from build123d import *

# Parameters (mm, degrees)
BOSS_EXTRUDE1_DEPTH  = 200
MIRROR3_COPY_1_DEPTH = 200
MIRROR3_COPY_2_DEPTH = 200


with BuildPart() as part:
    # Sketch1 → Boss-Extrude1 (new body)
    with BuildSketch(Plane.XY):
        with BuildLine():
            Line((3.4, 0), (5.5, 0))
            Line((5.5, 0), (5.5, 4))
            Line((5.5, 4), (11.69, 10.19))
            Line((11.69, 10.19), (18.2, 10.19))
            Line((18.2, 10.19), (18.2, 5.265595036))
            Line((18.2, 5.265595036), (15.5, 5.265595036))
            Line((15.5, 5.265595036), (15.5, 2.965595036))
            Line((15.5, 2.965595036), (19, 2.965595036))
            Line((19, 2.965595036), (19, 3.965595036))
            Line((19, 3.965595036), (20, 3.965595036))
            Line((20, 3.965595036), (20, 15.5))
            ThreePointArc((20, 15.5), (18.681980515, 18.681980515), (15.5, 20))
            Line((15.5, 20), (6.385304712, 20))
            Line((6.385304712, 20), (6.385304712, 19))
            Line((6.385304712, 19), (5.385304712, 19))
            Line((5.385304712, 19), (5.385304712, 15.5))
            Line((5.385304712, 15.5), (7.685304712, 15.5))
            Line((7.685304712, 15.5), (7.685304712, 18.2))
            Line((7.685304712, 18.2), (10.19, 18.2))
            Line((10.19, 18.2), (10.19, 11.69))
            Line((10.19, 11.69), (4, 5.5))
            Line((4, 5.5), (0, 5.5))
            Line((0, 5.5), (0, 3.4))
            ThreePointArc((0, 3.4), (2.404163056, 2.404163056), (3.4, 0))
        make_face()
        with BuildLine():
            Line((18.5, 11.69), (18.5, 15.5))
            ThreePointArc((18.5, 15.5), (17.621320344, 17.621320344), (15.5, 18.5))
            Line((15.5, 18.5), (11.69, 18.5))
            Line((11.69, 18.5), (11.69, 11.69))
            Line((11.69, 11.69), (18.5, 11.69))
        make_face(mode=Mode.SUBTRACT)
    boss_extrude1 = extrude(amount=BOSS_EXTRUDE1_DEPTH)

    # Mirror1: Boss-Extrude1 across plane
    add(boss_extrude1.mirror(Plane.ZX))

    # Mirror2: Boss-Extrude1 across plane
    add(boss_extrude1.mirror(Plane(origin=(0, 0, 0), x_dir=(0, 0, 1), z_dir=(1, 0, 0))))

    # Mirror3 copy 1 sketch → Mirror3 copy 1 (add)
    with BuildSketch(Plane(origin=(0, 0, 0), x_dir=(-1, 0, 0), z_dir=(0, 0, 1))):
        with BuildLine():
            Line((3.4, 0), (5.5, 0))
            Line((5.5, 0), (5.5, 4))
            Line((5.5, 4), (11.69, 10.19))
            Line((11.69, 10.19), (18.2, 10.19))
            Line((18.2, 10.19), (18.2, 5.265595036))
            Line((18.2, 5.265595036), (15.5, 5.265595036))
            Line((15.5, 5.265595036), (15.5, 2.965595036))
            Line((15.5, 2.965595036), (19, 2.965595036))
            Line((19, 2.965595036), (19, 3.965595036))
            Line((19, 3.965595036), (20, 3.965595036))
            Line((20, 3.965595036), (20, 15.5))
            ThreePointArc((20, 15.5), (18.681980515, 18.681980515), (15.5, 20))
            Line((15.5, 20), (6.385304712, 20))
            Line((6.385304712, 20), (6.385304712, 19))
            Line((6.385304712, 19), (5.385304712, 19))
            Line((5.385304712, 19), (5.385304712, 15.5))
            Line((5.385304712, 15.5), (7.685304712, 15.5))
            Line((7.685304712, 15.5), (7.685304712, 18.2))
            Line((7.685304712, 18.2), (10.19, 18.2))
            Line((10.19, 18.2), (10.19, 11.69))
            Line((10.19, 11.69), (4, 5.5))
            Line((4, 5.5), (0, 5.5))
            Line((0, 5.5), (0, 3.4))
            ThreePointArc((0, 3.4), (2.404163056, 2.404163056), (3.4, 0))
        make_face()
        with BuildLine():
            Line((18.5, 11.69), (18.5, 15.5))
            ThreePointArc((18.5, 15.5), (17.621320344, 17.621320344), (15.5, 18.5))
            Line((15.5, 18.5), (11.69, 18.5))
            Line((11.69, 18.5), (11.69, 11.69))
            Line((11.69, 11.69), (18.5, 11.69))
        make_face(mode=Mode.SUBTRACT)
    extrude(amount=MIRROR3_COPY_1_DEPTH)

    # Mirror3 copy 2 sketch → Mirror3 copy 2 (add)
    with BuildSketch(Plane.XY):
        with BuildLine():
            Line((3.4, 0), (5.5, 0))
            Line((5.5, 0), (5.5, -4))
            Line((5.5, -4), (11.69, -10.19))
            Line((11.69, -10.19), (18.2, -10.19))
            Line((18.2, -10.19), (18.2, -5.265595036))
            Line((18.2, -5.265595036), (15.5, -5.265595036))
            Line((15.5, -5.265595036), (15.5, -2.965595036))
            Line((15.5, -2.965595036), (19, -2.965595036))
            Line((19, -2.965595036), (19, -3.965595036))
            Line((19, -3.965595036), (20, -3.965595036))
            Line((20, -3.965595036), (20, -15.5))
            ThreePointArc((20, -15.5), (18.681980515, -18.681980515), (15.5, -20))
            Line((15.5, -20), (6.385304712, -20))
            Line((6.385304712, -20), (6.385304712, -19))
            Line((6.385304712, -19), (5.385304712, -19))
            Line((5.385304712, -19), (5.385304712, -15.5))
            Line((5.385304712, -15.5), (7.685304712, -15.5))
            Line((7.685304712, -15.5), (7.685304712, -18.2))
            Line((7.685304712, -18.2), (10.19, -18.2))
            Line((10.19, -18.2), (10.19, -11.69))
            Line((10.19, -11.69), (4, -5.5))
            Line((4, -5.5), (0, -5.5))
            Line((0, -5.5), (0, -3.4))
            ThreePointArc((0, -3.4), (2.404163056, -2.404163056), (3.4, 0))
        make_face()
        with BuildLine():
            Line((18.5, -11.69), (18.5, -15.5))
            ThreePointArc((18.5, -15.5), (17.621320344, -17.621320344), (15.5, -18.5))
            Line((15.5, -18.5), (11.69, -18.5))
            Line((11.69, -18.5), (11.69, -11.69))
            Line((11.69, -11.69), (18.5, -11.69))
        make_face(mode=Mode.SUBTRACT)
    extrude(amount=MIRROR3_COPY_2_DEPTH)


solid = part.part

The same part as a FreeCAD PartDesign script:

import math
import FreeCAD as App
import Part
import Sketcher
Q = App.Units.Quantity

doc = App.newDocument("Part")
params = doc.addObject("Spreadsheet::Sheet", "Params")
for row, (alias, value) in enumerate([
    ("sketch1_radius", "3 mm"),
    ("sketch1_radius2", "4.5 mm"),
    ("sketch1_radius3", "3.4 mm"),
    ("sketch1_width", "1 mm"),
    ("sketch1_width2", "4 mm"),
    ("pad1_length", "200 mm"),
    ("sketch2_radius", "3 mm"),
    ("sketch2_radius2", "4.5 mm"),
    ("sketch2_radius3", "3.4 mm"),
    ("sketch2_width", "1 mm"),
    ("sketch2_width2", "4 mm"),
    ("pad2_length", "200 mm"),
    ("sketch3_radius", "3 mm"),
    ("sketch3_radius2", "3.4 mm"),
    ("sketch3_radius3", "4.5 mm"),
    ("sketch3_width", "4 mm"),
    ("sketch3_width2", "1 mm"),
    ("pad3_length", "200 mm"),
], start=1):
    params.set(f"A{row}", alias)
    params.set(f"B{row}", "=" + value)
    params.setAlias(f"B{row}", alias)

body = doc.addObject("PartDesign::Body", "Body")

# Sketch on XY plane
sketch1 = body.newObject("Sketcher::SketchObject", "Sketch")
sketch1.AttachmentSupport = (doc.getObject("XY_Plane"), [""])
sketch1.MapMode = "FlatFace"
sketch1.addGeometry([
    Part.LineSegment(App.Vector(3.4, 0, 0), App.Vector(5.5, 0, 0)),  # 0
    Part.LineSegment(App.Vector(5.5, 0, 0), App.Vector(5.5, 4, 0)),  # 1
    Part.LineSegment(App.Vector(5.5, 4, 0), App.Vector(11.7, 10.2, 0)),  # 2
    Part.LineSegment(App.Vector(11.7, 10.2, 0), App.Vector(18.2, 10.2, 0)),  # 3
    Part.LineSegment(App.Vector(18.2, 10.2, 0), App.Vector(18.2, 5.3, 0)),  # 4
    Part.LineSegment(App.Vector(18.2, 5.3, 0), App.Vector(15.5, 5.3, 0)),  # 5
    Part.LineSegment(App.Vector(15.5, 5.3, 0), App.Vector(15.5, 3, 0)),  # 6
    Part.LineSegment(App.Vector(15.5, 3, 0), App.Vector(19, 3, 0)),  # 7
    Part.LineSegment(App.Vector(19, 3, 0), App.Vector(19, 4, 0)),  # 8
    Part.LineSegment(App.Vector(19, 4, 0), App.Vector(20, 4, 0)),  # 9
    Part.LineSegment(App.Vector(20, 4, 0), App.Vector(20, 15.5, 0)),  # 10
    Part.ArcOfCircle(Part.Circle(App.Vector(15.5, 15.5, 0), App.Vector(0, 0, 1), 4.5), math.radians(0), math.radians(90)),  # 11
    Part.LineSegment(App.Vector(15.5, 20, 0), App.Vector(6.4, 20, 0)),  # 12
    Part.LineSegment(App.Vector(6.4, 20, 0), App.Vector(6.4, 19, 0)),  # 13
    Part.LineSegment(App.Vector(6.4, 19, 0), App.Vector(5.4, 19, 0)),  # 14
    Part.LineSegment(App.Vector(5.4, 19, 0), App.Vector(5.4, 15.5, 0)),  # 15
    Part.LineSegment(App.Vector(5.4, 15.5, 0), App.Vector(7.7, 15.5, 0)),  # 16
    Part.LineSegment(App.Vector(7.7, 15.5, 0), App.Vector(7.7, 18.2, 0)),  # 17
    Part.LineSegment(App.Vector(7.7, 18.2, 0), App.Vector(10.2, 18.2, 0)),  # 18
    Part.LineSegment(App.Vector(10.2, 18.2, 0), App.Vector(10.2, 11.7, 0)),  # 19
    Part.LineSegment(App.Vector(10.2, 11.7, 0), App.Vector(4, 5.5, 0)),  # 20
    Part.LineSegment(App.Vector(4, 5.5, 0), App.Vector(0, 5.5, 0)),  # 21
    Part.LineSegment(App.Vector(0, 5.5, 0), App.Vector(0, 3.4, 0)),  # 22
    Part.ArcOfCircle(Part.Circle(App.Vector(0, 0, 0), App.Vector(0, 0, 1), 3.4), math.radians(0), math.radians(90)),  # 23
    Part.LineSegment(App.Vector(18.5, 15.5, 0), App.Vector(18.5, 11.7, 0)),  # 24
    Part.LineSegment(App.Vector(18.5, 11.7, 0), App.Vector(11.7, 11.7, 0)),  # 25
    Part.LineSegment(App.Vector(11.7, 11.7, 0), App.Vector(11.7, 18.5, 0)),  # 26
    Part.LineSegment(App.Vector(11.7, 18.5, 0), App.Vector(15.5, 18.5, 0)),  # 27
    Part.ArcOfCircle(Part.Circle(App.Vector(15.5, 15.5, 0), App.Vector(0, 0, 1), 3), math.radians(0), math.radians(90)),  # 28
], False)
sketch1.addConstraint([
    Sketcher.Constraint("Coincident", 0, 2, 1, 1),
    Sketcher.Constraint("Coincident", 1, 2, 2, 1),
    Sketcher.Constraint("Coincident", 2, 2, 3, 1),
    Sketcher.Constraint("Coincident", 3, 2, 4, 1),
    Sketcher.Constraint("Coincident", 4, 2, 5, 1),
    Sketcher.Constraint("Coincident", 5, 2, 6, 1),
    Sketcher.Constraint("Coincident", 6, 2, 7, 1),
    Sketcher.Constraint("Coincident", 7, 2, 8, 1),
    Sketcher.Constraint("Coincident", 8, 2, 9, 1),
    Sketcher.Constraint("Coincident", 9, 2, 10, 1),
    Sketcher.Constraint("Tangent", 10, 2, 11, 1),
    Sketcher.Constraint("Tangent", 11, 2, 12, 1),
    Sketcher.Constraint("Coincident", 12, 2, 13, 1),
    Sketcher.Constraint("Coincident", 13, 2, 14, 1),
    Sketcher.Constraint("Coincident", 14, 2, 15, 1),
    Sketcher.Constraint("Coincident", 15, 2, 16, 1),
    Sketcher.Constraint("Coincident", 16, 2, 17, 1),
    Sketcher.Constraint("Coincident", 17, 2, 18, 1),
    Sketcher.Constraint("Coincident", 18, 2, 19, 1),
    Sketcher.Constraint("Coincident", 19, 2, 20, 1),
    Sketcher.Constraint("Coincident", 20, 2, 21, 1),
    Sketcher.Constraint("Coincident", 21, 2, 22, 1),
    Sketcher.Constraint("Coincident", 22, 2, 23, 2),
    Sketcher.Constraint("Coincident", 23, 1, 0, 1),
    Sketcher.Constraint("Coincident", 24, 2, 25, 1),
    Sketcher.Constraint("Coincident", 25, 2, 26, 1),
    Sketcher.Constraint("Coincident", 26, 2, 27, 1),
    Sketcher.Constraint("Tangent", 27, 2, 28, 2),
    Sketcher.Constraint("Tangent", 28, 1, 24, 1),
    Sketcher.Constraint("Horizontal", 0),
    Sketcher.Constraint("Vertical", 1),
    Sketcher.Constraint("Horizontal", 3),
    Sketcher.Constraint("Vertical", 4),
    Sketcher.Constraint("Horizontal", 5),
    Sketcher.Constraint("Vertical", 6),
    Sketcher.Constraint("Horizontal", 7),
    Sketcher.Constraint("Vertical", 8),
    Sketcher.Constraint("Horizontal", 9),
    Sketcher.Constraint("Vertical", 10),
    Sketcher.Constraint("Horizontal", 12),
    Sketcher.Constraint("Vertical", 13),
    Sketcher.Constraint("Horizontal", 14),
    Sketcher.Constraint("Vertical", 15),
    Sketcher.Constraint("Horizontal", 16),
    Sketcher.Constraint("Vertical", 17),
    Sketcher.Constraint("Horizontal", 18),
    Sketcher.Constraint("Vertical", 19),
    Sketcher.Constraint("Horizontal", 21),
    Sketcher.Constraint("Vertical", 22),
    Sketcher.Constraint("Vertical", 24),
    Sketcher.Constraint("Horizontal", 25),
    Sketcher.Constraint("Vertical", 26),
    Sketcher.Constraint("Horizontal", 27),
    Sketcher.Constraint("Coincident", 23, 3, -1, 1),
    Sketcher.Constraint("Coincident", 28, 3, 11, 3),
    Sketcher.Constraint("PointOnObject", 0, 2, -1),
    Sketcher.Constraint("PointOnObject", 21, 2, -2),
    Sketcher.Constraint("Parallel", 2, 20),
    Sketcher.Constraint("Horizontal", 10, 2, 15, 2),
    Sketcher.Constraint("Horizontal", 19, 2, 24, 2),
    Sketcher.Constraint("Vertical", 28, 3, 5, 2),
    Sketcher.Constraint("Vertical", 2, 2, 25, 2),
    Sketcher.Constraint("Equal", 9, 14),
    Sketcher.Constraint("Equal", 21, 1),
    Sketcher.Constraint("Equal", 16, 6),
    Sketcher.Constraint("Equal", 14, 8),
    Sketcher.Constraint("Equal", 8, 13),
    Sketcher.Constraint("Equal", 5, 17),
    Sketcher.Constraint("Equal", 3, 19),
    Sketcher.Constraint("Equal", 0, 22),
    Sketcher.Constraint("Equal", 2, 20),
    Sketcher.Constraint("Radius", 28, 3.0),
    Sketcher.Constraint("Radius", 11, 4.5),
    Sketcher.Constraint("Radius", 23, 3.4),
    Sketcher.Constraint("DistanceX", 9, 1, 9, 2, 1.0),
    Sketcher.Constraint("DistanceX", 21, 2, 21, 1, 4.0),
    Sketcher.Constraint("Angle", 2, Q("45 deg")),
    Sketcher.Constraint("DistanceX", 0, 1, 0, 2, 2.1),
    Sketcher.Constraint("DistanceX", 5, 2, 5, 1, 2.7),
    Sketcher.Constraint("DistanceX", 16, 1, 16, 2, 2.3),
    Sketcher.Constraint("DistanceX", -1, 1, 7, 2, 19.0),
    Sketcher.Constraint("DistanceX", 3, 1, 3, 2, 6.51),
    Sketcher.Constraint("DistanceX", 12, 2, 12, 1, 9.114695),
    Sketcher.Constraint("DistanceY", 4, 2, 4, 1, 4.924405),
])
sketch1.setExpression("Constraints[71]", "Params.sketch1_radius")
sketch1.setExpression("Constraints[72]", "Params.sketch1_radius2")
sketch1.setExpression("Constraints[73]", "Params.sketch1_radius3")
sketch1.setExpression("Constraints[74]", "Params.sketch1_width")
sketch1.setExpression("Constraints[75]", "Params.sketch1_width2")
pad1 = body.newObject("PartDesign::Pad", "Pad")
pad1.Profile = sketch1
pad1.setExpression("Length", "Params.pad1_length")
doc.recompute()

mirrored = body.newObject("PartDesign::Mirrored", "Mirrored")
mirrored.Originals = [pad1]
mirrored.MirrorPlane = (doc.getObject("XZ_Plane"), [""])
body.Tip = mirrored
doc.recompute()

mirrored2 = body.newObject("PartDesign::Mirrored", "Mirrored001")
mirrored2.Originals = [pad1]
mirrored2.MirrorPlane = (doc.getObject("YZ_Plane"), [""])
body.Tip = mirrored2

# Sketch on XY plane
sketch2 = body.newObject("Sketcher::SketchObject", "Sketch001")
sketch2.AttachmentSupport = (doc.getObject("XY_Plane"), [""])
sketch2.MapMode = "FlatFace"
sketch2.addGeometry([
    Part.LineSegment(App.Vector(-3.4, 0, 0), App.Vector(-5.5, 0, 0)),  # 0
    Part.LineSegment(App.Vector(-5.5, 0, 0), App.Vector(-5.5, -4, 0)),  # 1
    Part.LineSegment(App.Vector(-5.5, -4, 0), App.Vector(-11.7, -10.2, 0)),  # 2
    Part.LineSegment(App.Vector(-11.7, -10.2, 0), App.Vector(-18.2, -10.2, 0)),  # 3
    Part.LineSegment(App.Vector(-18.2, -10.2, 0), App.Vector(-18.2, -5.3, 0)),  # 4
    Part.LineSegment(App.Vector(-18.2, -5.3, 0), App.Vector(-15.5, -5.3, 0)),  # 5
    Part.LineSegment(App.Vector(-15.5, -5.3, 0), App.Vector(-15.5, -3, 0)),  # 6
    Part.LineSegment(App.Vector(-15.5, -3, 0), App.Vector(-19, -3, 0)),  # 7
    Part.LineSegment(App.Vector(-19, -3, 0), App.Vector(-19, -4, 0)),  # 8
    Part.LineSegment(App.Vector(-19, -4, 0), App.Vector(-20, -4, 0)),  # 9
    Part.LineSegment(App.Vector(-20, -4, 0), App.Vector(-20, -15.5, 0)),  # 10
    Part.ArcOfCircle(Part.Circle(App.Vector(-15.5, -15.5, 0), App.Vector(0, 0, 1), 4.5), math.radians(-180), math.radians(-90)),  # 11
    Part.LineSegment(App.Vector(-15.5, -20, 0), App.Vector(-6.4, -20, 0)),  # 12
    Part.LineSegment(App.Vector(-6.4, -20, 0), App.Vector(-6.4, -19, 0)),  # 13
    Part.LineSegment(App.Vector(-6.4, -19, 0), App.Vector(-5.4, -19, 0)),  # 14
    Part.LineSegment(App.Vector(-5.4, -19, 0), App.Vector(-5.4, -15.5, 0)),  # 15
    Part.LineSegment(App.Vector(-5.4, -15.5, 0), App.Vector(-7.7, -15.5, 0)),  # 16
    Part.LineSegment(App.Vector(-7.7, -15.5, 0), App.Vector(-7.7, -18.2, 0)),  # 17
    Part.LineSegment(App.Vector(-7.7, -18.2, 0), App.Vector(-10.2, -18.2, 0)),  # 18
    Part.LineSegment(App.Vector(-10.2, -18.2, 0), App.Vector(-10.2, -11.7, 0)),  # 19
    Part.LineSegment(App.Vector(-10.2, -11.7, 0), App.Vector(-4, -5.5, 0)),  # 20
    Part.LineSegment(App.Vector(-4, -5.5, 0), App.Vector(0, -5.5, 0)),  # 21
    Part.LineSegment(App.Vector(0, -5.5, 0), App.Vector(0, -3.4, 0)),  # 22
    Part.ArcOfCircle(Part.Circle(App.Vector(0, 0, 0), App.Vector(0, 0, 1), 3.4), math.radians(180), math.radians(270)),  # 23
    Part.LineSegment(App.Vector(-18.5, -15.5, 0), App.Vector(-18.5, -11.7, 0)),  # 24
    Part.LineSegment(App.Vector(-18.5, -11.7, 0), App.Vector(-11.7, -11.7, 0)),  # 25
    Part.LineSegment(App.Vector(-11.7, -11.7, 0), App.Vector(-11.7, -18.5, 0)),  # 26
    Part.LineSegment(App.Vector(-11.7, -18.5, 0), App.Vector(-15.5, -18.5, 0)),  # 27
    Part.ArcOfCircle(Part.Circle(App.Vector(-15.5, -15.5, 0), App.Vector(0, 0, 1), 3), math.radians(180), math.radians(270)),  # 28
], False)
sketch2.addConstraint([
    Sketcher.Constraint("Coincident", 0, 2, 1, 1),
    Sketcher.Constraint("Coincident", 1, 2, 2, 1),
    Sketcher.Constraint("Coincident", 2, 2, 3, 1),
    Sketcher.Constraint("Coincident", 3, 2, 4, 1),
    Sketcher.Constraint("Coincident", 4, 2, 5, 1),
    Sketcher.Constraint("Coincident", 5, 2, 6, 1),
    Sketcher.Constraint("Coincident", 6, 2, 7, 1),
    Sketcher.Constraint("Coincident", 7, 2, 8, 1),
    Sketcher.Constraint("Coincident", 8, 2, 9, 1),
    Sketcher.Constraint("Coincident", 9, 2, 10, 1),
    Sketcher.Constraint("Tangent", 10, 2, 11, 1),
    Sketcher.Constraint("Tangent", 11, 2, 12, 1),
    Sketcher.Constraint("Coincident", 12, 2, 13, 1),
    Sketcher.Constraint("Coincident", 13, 2, 14, 1),
    Sketcher.Constraint("Coincident", 14, 2, 15, 1),
    Sketcher.Constraint("Coincident", 15, 2, 16, 1),
    Sketcher.Constraint("Coincident", 16, 2, 17, 1),
    Sketcher.Constraint("Coincident", 17, 2, 18, 1),
    Sketcher.Constraint("Coincident", 18, 2, 19, 1),
    Sketcher.Constraint("Coincident", 19, 2, 20, 1),
    Sketcher.Constraint("Coincident", 20, 2, 21, 1),
    Sketcher.Constraint("Coincident", 21, 2, 22, 1),
    Sketcher.Constraint("Coincident", 22, 2, 23, 2),
    Sketcher.Constraint("Coincident", 23, 1, 0, 1),
    Sketcher.Constraint("Coincident", 24, 2, 25, 1),
    Sketcher.Constraint("Coincident", 25, 2, 26, 1),
    Sketcher.Constraint("Coincident", 26, 2, 27, 1),
    Sketcher.Constraint("Tangent", 27, 2, 28, 2),
    Sketcher.Constraint("Tangent", 28, 1, 24, 1),
    Sketcher.Constraint("Horizontal", 0),
    Sketcher.Constraint("Vertical", 1),
    Sketcher.Constraint("Horizontal", 3),
    Sketcher.Constraint("Vertical", 4),
    Sketcher.Constraint("Horizontal", 5),
    Sketcher.Constraint("Vertical", 6),
    Sketcher.Constraint("Horizontal", 7),
    Sketcher.Constraint("Vertical", 8),
    Sketcher.Constraint("Horizontal", 9),
    Sketcher.Constraint("Vertical", 10),
    Sketcher.Constraint("Horizontal", 12),
    Sketcher.Constraint("Vertical", 13),
    Sketcher.Constraint("Horizontal", 14),
    Sketcher.Constraint("Vertical", 15),
    Sketcher.Constraint("Horizontal", 16),
    Sketcher.Constraint("Vertical", 17),
    Sketcher.Constraint("Horizontal", 18),
    Sketcher.Constraint("Vertical", 19),
    Sketcher.Constraint("Horizontal", 21),
    Sketcher.Constraint("Vertical", 22),
    Sketcher.Constraint("Vertical", 24),
    Sketcher.Constraint("Horizontal", 25),
    Sketcher.Constraint("Vertical", 26),
    Sketcher.Constraint("Horizontal", 27),
    Sketcher.Constraint("Coincident", 23, 3, -1, 1),
    Sketcher.Constraint("Coincident", 28, 3, 11, 3),
    Sketcher.Constraint("PointOnObject", 0, 2, -1),
    Sketcher.Constraint("PointOnObject", 21, 2, -2),
    Sketcher.Constraint("Parallel", 2, 20),
    Sketcher.Constraint("Horizontal", 10, 2, 15, 2),
    Sketcher.Constraint("Horizontal", 19, 2, 24, 2),
    Sketcher.Constraint("Vertical", 28, 3, 5, 2),
    Sketcher.Constraint("Vertical", 2, 2, 25, 2),
    Sketcher.Constraint("Equal", 9, 14),
    Sketcher.Constraint("Equal", 21, 1),
    Sketcher.Constraint("Equal", 16, 6),
    Sketcher.Constraint("Equal", 14, 8),
    Sketcher.Constraint("Equal", 8, 13),
    Sketcher.Constraint("Equal", 5, 17),
    Sketcher.Constraint("Equal", 3, 19),
    Sketcher.Constraint("Equal", 0, 22),
    Sketcher.Constraint("Equal", 2, 20),
    Sketcher.Constraint("Radius", 28, 3.0),
    Sketcher.Constraint("Radius", 11, 4.5),
    Sketcher.Constraint("Radius", 23, 3.4),
    Sketcher.Constraint("DistanceX", 9, 2, 9, 1, 1.0),
    Sketcher.Constraint("DistanceX", 21, 1, 21, 2, 4.0),
    Sketcher.Constraint("Angle", 2, Q("-135 deg")),
    Sketcher.Constraint("DistanceX", 0, 2, 0, 1, 2.1),
    Sketcher.Constraint("DistanceX", 5, 1, 5, 2, 2.7),
    Sketcher.Constraint("DistanceX", 16, 2, 16, 1, 2.3),
    Sketcher.Constraint("DistanceX", 7, 2, -1, 1, 19.0),
    Sketcher.Constraint("DistanceX", 3, 2, 3, 1, 6.51),
    Sketcher.Constraint("DistanceX", 12, 1, 12, 2, 9.114695),
    Sketcher.Constraint("DistanceY", 4, 1, 4, 2, 4.924405),
])
sketch2.setExpression("Constraints[71]", "Params.sketch2_radius")
sketch2.setExpression("Constraints[72]", "Params.sketch2_radius2")
sketch2.setExpression("Constraints[73]", "Params.sketch2_radius3")
sketch2.setExpression("Constraints[74]", "Params.sketch2_width")
sketch2.setExpression("Constraints[75]", "Params.sketch2_width2")
pad2 = body.newObject("PartDesign::Pad", "Pad001")
pad2.Profile = sketch2
pad2.setExpression("Length", "Params.pad2_length")

# Sketch on XY plane
sketch3 = body.newObject("Sketcher::SketchObject", "Sketch002")
sketch3.AttachmentSupport = (doc.getObject("XY_Plane"), [""])
sketch3.MapMode = "FlatFace"
sketch3.addGeometry([
    Part.LineSegment(App.Vector(5.5, 0, 0), App.Vector(3.4, 0, 0)),  # 0
    Part.ArcOfCircle(Part.Circle(App.Vector(0, 0, 0), App.Vector(0, 0, 1), 3.4), math.radians(-90), math.radians(0)),  # 1
    Part.LineSegment(App.Vector(0, -3.4, 0), App.Vector(0, -5.5, 0)),  # 2
    Part.LineSegment(App.Vector(0, -5.5, 0), App.Vector(4, -5.5, 0)),  # 3
    Part.LineSegment(App.Vector(4, -5.5, 0), App.Vector(10.2, -11.7, 0)),  # 4
    Part.LineSegment(App.Vector(10.2, -11.7, 0), App.Vector(10.2, -18.2, 0)),  # 5
    Part.LineSegment(App.Vector(10.2, -18.2, 0), App.Vector(7.7, -18.2, 0)),  # 6
    Part.LineSegment(App.Vector(7.7, -18.2, 0), App.Vector(7.7, -15.5, 0)),  # 7
    Part.LineSegment(App.Vector(7.7, -15.5, 0), App.Vector(5.4, -15.5, 0)),  # 8
    Part.LineSegment(App.Vector(5.4, -15.5, 0), App.Vector(5.4, -19, 0)),  # 9
    Part.LineSegment(App.Vector(5.4, -19, 0), App.Vector(6.4, -19, 0)),  # 10
    Part.LineSegment(App.Vector(6.4, -19, 0), App.Vector(6.4, -20, 0)),  # 11
    Part.LineSegment(App.Vector(6.4, -20, 0), App.Vector(15.5, -20, 0)),  # 12
    Part.ArcOfCircle(Part.Circle(App.Vector(15.5, -15.5, 0), App.Vector(0, 0, 1), 4.5), math.radians(-90), math.radians(0)),  # 13
    Part.LineSegment(App.Vector(20, -15.5, 0), App.Vector(20, -4, 0)),  # 14
    Part.LineSegment(App.Vector(20, -4, 0), App.Vector(19, -4, 0)),  # 15
    Part.LineSegment(App.Vector(19, -4, 0), App.Vector(19, -3, 0)),  # 16
    Part.LineSegment(App.Vector(19, -3, 0), App.Vector(15.5, -3, 0)),  # 17
    Part.LineSegment(App.Vector(15.5, -3, 0), App.Vector(15.5, -5.3, 0)),  # 18
    Part.LineSegment(App.Vector(15.5, -5.3, 0), App.Vector(18.2, -5.3, 0)),  # 19
    Part.LineSegment(App.Vector(18.2, -5.3, 0), App.Vector(18.2, -10.2, 0)),  # 20
    Part.LineSegment(App.Vector(18.2, -10.2, 0), App.Vector(11.7, -10.2, 0)),  # 21
    Part.LineSegment(App.Vector(11.7, -10.2, 0), App.Vector(5.5, -4, 0)),  # 22
    Part.LineSegment(App.Vector(5.5, -4, 0), App.Vector(5.5, 0, 0)),  # 23
    Part.LineSegment(App.Vector(18.5, -11.7, 0), App.Vector(18.5, -15.5, 0)),  # 24
    Part.ArcOfCircle(Part.Circle(App.Vector(15.5, -15.5, 0), App.Vector(0, 0, 1), 3), math.radians(-90), math.radians(0)),  # 25
    Part.LineSegment(App.Vector(15.5, -18.5, 0), App.Vector(11.7, -18.5, 0)),  # 26
    Part.LineSegment(App.Vector(11.7, -18.5, 0), App.Vector(11.7, -11.7, 0)),  # 27
    Part.LineSegment(App.Vector(11.7, -11.7, 0), App.Vector(18.5, -11.7, 0)),  # 28
], False)
sketch3.addConstraint([
    Sketcher.Constraint("Coincident", 0, 2, 1, 2),
    Sketcher.Constraint("Coincident", 1, 1, 2, 1),
    Sketcher.Constraint("Coincident", 2, 2, 3, 1),
    Sketcher.Constraint("Coincident", 3, 2, 4, 1),
    Sketcher.Constraint("Coincident", 4, 2, 5, 1),
    Sketcher.Constraint("Coincident", 5, 2, 6, 1),
    Sketcher.Constraint("Coincident", 6, 2, 7, 1),
    Sketcher.Constraint("Coincident", 7, 2, 8, 1),
    Sketcher.Constraint("Coincident", 8, 2, 9, 1),
    Sketcher.Constraint("Coincident", 9, 2, 10, 1),
    Sketcher.Constraint("Coincident", 10, 2, 11, 1),
    Sketcher.Constraint("Coincident", 11, 2, 12, 1),
    Sketcher.Constraint("Tangent", 12, 2, 13, 1),
    Sketcher.Constraint("Tangent", 13, 2, 14, 1),
    Sketcher.Constraint("Coincident", 14, 2, 15, 1),
    Sketcher.Constraint("Coincident", 15, 2, 16, 1),
    Sketcher.Constraint("Coincident", 16, 2, 17, 1),
    Sketcher.Constraint("Coincident", 17, 2, 18, 1),
    Sketcher.Constraint("Coincident", 18, 2, 19, 1),
    Sketcher.Constraint("Coincident", 19, 2, 20, 1),
    Sketcher.Constraint("Coincident", 20, 2, 21, 1),
    Sketcher.Constraint("Coincident", 21, 2, 22, 1),
    Sketcher.Constraint("Coincident", 22, 2, 23, 1),
    Sketcher.Constraint("Coincident", 23, 2, 0, 1),
    Sketcher.Constraint("Tangent", 24, 2, 25, 2),
    Sketcher.Constraint("Tangent", 25, 1, 26, 1),
    Sketcher.Constraint("Coincident", 26, 2, 27, 1),
    Sketcher.Constraint("Coincident", 27, 2, 28, 1),
    Sketcher.Constraint("Coincident", 28, 2, 24, 1),
    Sketcher.Constraint("Horizontal", 0),
    Sketcher.Constraint("Vertical", 2),
    Sketcher.Constraint("Horizontal", 3),
    Sketcher.Constraint("Vertical", 5),
    Sketcher.Constraint("Horizontal", 6),
    Sketcher.Constraint("Vertical", 7),
    Sketcher.Constraint("Horizontal", 8),
    Sketcher.Constraint("Vertical", 9),
    Sketcher.Constraint("Horizontal", 10),
    Sketcher.Constraint("Vertical", 11),
    Sketcher.Constraint("Horizontal", 12),
    Sketcher.Constraint("Vertical", 14),
    Sketcher.Constraint("Horizontal", 15),
    Sketcher.Constraint("Vertical", 16),
    Sketcher.Constraint("Horizontal", 17),
    Sketcher.Constraint("Vertical", 18),
    Sketcher.Constraint("Horizontal", 19),
    Sketcher.Constraint("Vertical", 20),
    Sketcher.Constraint("Horizontal", 21),
    Sketcher.Constraint("Vertical", 23),
    Sketcher.Constraint("Vertical", 24),
    Sketcher.Constraint("Horizontal", 26),
    Sketcher.Constraint("Vertical", 27),
    Sketcher.Constraint("Horizontal", 28),
    Sketcher.Constraint("Coincident", 1, 3, -1, 1),
    Sketcher.Constraint("Coincident", 25, 3, 13, 3),
    Sketcher.Constraint("PointOnObject", 0, 2, -1),
    Sketcher.Constraint("PointOnObject", 1, 1, -2),
    Sketcher.Constraint("Parallel", 4, 22),
    Sketcher.Constraint("Horizontal", 25, 3, 7, 2),
    Sketcher.Constraint("Horizontal", 4, 2, 27, 2),
    Sketcher.Constraint("Vertical", 12, 2, 17, 2),
    Sketcher.Constraint("Vertical", 21, 2, 26, 2),
    Sketcher.Constraint("Equal", 10, 15),
    Sketcher.Constraint("Equal", 0, 2),
    Sketcher.Constraint("Equal", 21, 5),
    Sketcher.Constraint("Equal", 19, 7),
    Sketcher.Constraint("Equal", 17, 9),
    Sketcher.Constraint("Equal", 11, 16),
    Sketcher.Constraint("Equal", 8, 18),
    Sketcher.Constraint("Equal", 3, 23),
    Sketcher.Constraint("Equal", 4, 22),
    Sketcher.Constraint("Radius", 25, 3.0),
    Sketcher.Constraint("Radius", 1, 3.4),
    Sketcher.Constraint("Radius", 13, 4.5),
    Sketcher.Constraint("DistanceX", 3, 1, 3, 2, 4.0),
    Sketcher.Constraint("DistanceX", 10, 1, 10, 2, 1.0),
    Sketcher.Constraint("Angle", 4, Q("-45 deg")),
    Sketcher.Constraint("DistanceX", 0, 2, 0, 1, 2.1),
    Sketcher.Constraint("DistanceX", 8, 2, 8, 1, 2.3),
    Sketcher.Constraint("DistanceX", 19, 1, 19, 2, 2.7),
    Sketcher.Constraint("DistanceY", 9, 2, -1, 1, 19.0),
    Sketcher.Constraint("DistanceX", 21, 2, 21, 1, 6.51),
    Sketcher.Constraint("DistanceX", 6, 2, 6, 1, 2.504695),
    Sketcher.Constraint("DistanceY", 14, 1, 14, 2, 11.534405),
])
sketch3.setExpression("Constraints[71]", "Params.sketch3_radius")
sketch3.setExpression("Constraints[72]", "Params.sketch3_radius2")
sketch3.setExpression("Constraints[73]", "Params.sketch3_radius3")
sketch3.setExpression("Constraints[74]", "Params.sketch3_width")
sketch3.setExpression("Constraints[75]", "Params.sketch3_width2")
pad3 = body.newObject("PartDesign::Pad", "Pad002")
pad3.Profile = sketch3
pad3.setExpression("Length", "Params.pad3_length")

doc.recompute()
